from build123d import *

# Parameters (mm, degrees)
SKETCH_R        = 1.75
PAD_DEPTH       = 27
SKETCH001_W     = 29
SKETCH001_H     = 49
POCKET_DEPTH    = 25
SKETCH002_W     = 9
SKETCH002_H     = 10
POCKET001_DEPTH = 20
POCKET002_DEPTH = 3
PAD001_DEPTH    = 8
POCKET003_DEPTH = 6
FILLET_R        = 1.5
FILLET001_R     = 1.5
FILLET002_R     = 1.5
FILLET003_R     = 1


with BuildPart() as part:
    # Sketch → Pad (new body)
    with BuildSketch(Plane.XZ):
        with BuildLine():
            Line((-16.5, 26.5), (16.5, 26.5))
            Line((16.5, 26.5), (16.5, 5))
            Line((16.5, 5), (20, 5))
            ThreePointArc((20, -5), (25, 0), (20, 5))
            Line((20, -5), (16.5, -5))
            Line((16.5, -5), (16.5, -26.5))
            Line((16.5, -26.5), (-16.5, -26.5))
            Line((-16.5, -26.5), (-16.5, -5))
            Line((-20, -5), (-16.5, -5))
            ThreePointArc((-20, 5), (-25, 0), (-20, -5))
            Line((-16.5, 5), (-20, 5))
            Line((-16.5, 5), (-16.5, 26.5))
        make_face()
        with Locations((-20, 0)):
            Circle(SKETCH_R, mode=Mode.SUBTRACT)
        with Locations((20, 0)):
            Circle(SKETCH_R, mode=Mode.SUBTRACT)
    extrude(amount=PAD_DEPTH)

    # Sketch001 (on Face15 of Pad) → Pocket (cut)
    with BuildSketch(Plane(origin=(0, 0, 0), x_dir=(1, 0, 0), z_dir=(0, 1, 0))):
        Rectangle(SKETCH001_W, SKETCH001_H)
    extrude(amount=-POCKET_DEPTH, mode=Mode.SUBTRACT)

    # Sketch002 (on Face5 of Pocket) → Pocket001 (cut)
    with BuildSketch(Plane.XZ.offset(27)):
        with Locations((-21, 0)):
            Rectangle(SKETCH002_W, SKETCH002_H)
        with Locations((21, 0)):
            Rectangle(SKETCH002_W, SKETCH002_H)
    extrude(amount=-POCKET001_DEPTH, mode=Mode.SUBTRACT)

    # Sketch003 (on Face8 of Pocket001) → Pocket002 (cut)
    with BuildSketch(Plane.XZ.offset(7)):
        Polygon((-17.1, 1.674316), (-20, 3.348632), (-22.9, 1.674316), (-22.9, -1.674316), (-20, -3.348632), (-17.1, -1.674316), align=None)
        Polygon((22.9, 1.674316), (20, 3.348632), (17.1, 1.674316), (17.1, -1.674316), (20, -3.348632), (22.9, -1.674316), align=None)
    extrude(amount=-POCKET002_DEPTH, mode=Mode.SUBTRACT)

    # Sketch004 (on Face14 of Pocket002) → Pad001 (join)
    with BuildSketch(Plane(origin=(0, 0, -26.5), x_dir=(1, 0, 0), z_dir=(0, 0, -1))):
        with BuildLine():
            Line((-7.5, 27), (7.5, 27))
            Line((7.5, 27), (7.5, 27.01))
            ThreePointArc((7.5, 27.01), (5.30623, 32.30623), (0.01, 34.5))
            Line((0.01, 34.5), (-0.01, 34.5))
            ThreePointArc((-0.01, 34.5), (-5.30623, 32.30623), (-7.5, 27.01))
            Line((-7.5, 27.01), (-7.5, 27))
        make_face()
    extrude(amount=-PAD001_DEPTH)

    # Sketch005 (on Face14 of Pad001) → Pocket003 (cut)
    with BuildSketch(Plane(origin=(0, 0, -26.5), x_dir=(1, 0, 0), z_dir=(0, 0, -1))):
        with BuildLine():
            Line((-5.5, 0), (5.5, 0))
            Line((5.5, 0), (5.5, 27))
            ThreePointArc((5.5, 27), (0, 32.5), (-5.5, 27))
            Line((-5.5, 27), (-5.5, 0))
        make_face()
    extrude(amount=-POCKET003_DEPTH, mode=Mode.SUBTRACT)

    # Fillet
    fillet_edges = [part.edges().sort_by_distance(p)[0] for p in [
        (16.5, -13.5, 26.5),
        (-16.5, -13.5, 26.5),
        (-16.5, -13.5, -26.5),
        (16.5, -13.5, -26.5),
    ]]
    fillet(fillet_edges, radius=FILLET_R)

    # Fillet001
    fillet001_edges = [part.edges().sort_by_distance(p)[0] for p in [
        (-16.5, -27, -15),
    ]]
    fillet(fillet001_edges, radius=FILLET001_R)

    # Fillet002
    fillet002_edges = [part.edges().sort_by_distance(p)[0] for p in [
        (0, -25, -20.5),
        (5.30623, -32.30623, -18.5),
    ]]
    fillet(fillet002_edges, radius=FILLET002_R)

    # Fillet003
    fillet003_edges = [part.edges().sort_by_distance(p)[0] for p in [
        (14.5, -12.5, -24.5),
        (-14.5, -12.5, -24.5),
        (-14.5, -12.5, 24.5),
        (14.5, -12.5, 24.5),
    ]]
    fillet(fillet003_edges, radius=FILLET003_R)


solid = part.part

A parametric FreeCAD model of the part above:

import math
import FreeCAD as App
import Part
import Sketcher
Q = App.Units.Quantity


def edges_at(feature, points):
    """Names of the edges that pass closest to the given points."""
    edges = feature.Shape.Edges
    near = lambda p: min(range(len(edges)), key=lambda i: edges[i].distToShape(Part.Vertex(*p))[0])
    return sorted({f"Edge{near(p) + 1}" for p in points})

doc = App.newDocument("Part")
body = doc.addObject("PartDesign::Body", "Body")

sketch1 = doc.addObject("Sketcher::SketchObject", "Sketch")
body.addObject(sketch1)
sketch1.AttachmentSupport = (doc.XZ_Plane, [""])
sketch1.MapMode = "FlatFace"
sketch1.addGeometry([
    Part.LineSegment(App.Vector(16.5, 26.5, 0), App.Vector(-16.5, 26.5, 0)),
    Part.LineSegment(App.Vector(-16.5, 26.5, 0), App.Vector(-16.5, 5, 0)),
    Part.LineSegment(App.Vector(-16.5, 5, 0), App.Vector(-20, 5, 0)),
    Part.ArcOfCircle(Part.Circle(App.Vector(-20, 0, 0), App.Vector(0, 0, 1), 5), math.radians(90), math.radians(270)),
    Part.LineSegment(App.Vector(-20, -5, 0), App.Vector(-16.5, -5, 0)),
    Part.LineSegment(App.Vector(-16.5, -5, 0), App.Vector(-16.5, -26.5, 0)),
    Part.LineSegment(App.Vector(-16.5, -26.5, 0), App.Vector(16.5, -26.5, 0)),
    Part.LineSegment(App.Vector(16.5, -26.5, 0), App.Vector(16.5, -5, 0)),
    Part.LineSegment(App.Vector(16.5, -5, 0), App.Vector(20, -5, 0)),
    Part.ArcOfCircle(Part.Circle(App.Vector(20, 0, 0), App.Vector(0, 0, 1), 5), math.radians(-90), math.radians(90)),
    Part.LineSegment(App.Vector(20, 5, 0), App.Vector(16.5, 5, 0)),
    Part.LineSegment(App.Vector(16.5, 5, 0), App.Vector(16.5, 26.5, 0)),
    Part.Circle(App.Vector(20, 0, 0), App.Vector(0, 0, 1), 1.75),
    Part.Circle(App.Vector(-20, 0, 0), App.Vector(0, 0, 1), 1.75),
], False)
sketch1.addConstraint([
    Sketcher.Constraint("Coincident", 0, 2, 1, 1),
    Sketcher.Constraint("Coincident", 1, 2, 2, 1),
    Sketcher.Constraint("Tangent", 2, 2, 3, 1),
    Sketcher.Constraint("Tangent", 3, 2, 4, 1),
    Sketcher.Constraint("Coincident", 4, 2, 5, 1),
    Sketcher.Constraint("Coincident", 5, 2, 6, 1),
    Sketcher.Constraint("Coincident", 6, 2, 7, 1),
    Sketcher.Constraint("Coincident", 7, 2, 8, 1),
    Sketcher.Constraint("Tangent", 8, 2, 9, 1),
    Sketcher.Constraint("Tangent", 9, 2, 10, 1),
    Sketcher.Constraint("Coincident", 10, 2, 11, 1),
    Sketcher.Constraint("Coincident", 11, 2, 0, 1),
    Sketcher.Constraint("Horizontal", 0),
    Sketcher.Constraint("Vertical", 1),
    Sketcher.Constraint("Horizontal", 2),
    Sketcher.Constraint("Horizontal", 4),
    Sketcher.Constraint("Vertical", 5),
    Sketcher.Constraint("Horizontal", 6),
    Sketcher.Constraint("Vertical", 7),
    Sketcher.Constraint("Horizontal", 8),
    Sketcher.Constraint("Horizontal", 10),
    Sketcher.Constraint("Vertical", 11),
    Sketcher.Constraint("Coincident", 12, 3, 9, 3),
    Sketcher.Constraint("Coincident", 13, 3, 3, 3),
    Sketcher.Constraint("Equal", 3, 9),
    Sketcher.Constraint("Equal", 12, 13),
    Sketcher.Constraint("Symmetric", 3, 3, 9, 3, -1, 1),
    Sketcher.Constraint("Symmetric", 0, 2, 6, 2, -1, 1),
    Sketcher.Constraint("Symmetric", 4, 2, 7, 2, -2),
    Sketcher.Constraint("Vertical", 7, 2, 10, 2),
    Sketcher.Constraint("Radius", 3, 5.0),
    Sketcher.Constraint("Diameter", 12, 3.5),
    Sketcher.Constraint("DistanceX", 0, 2, 0, 1, 33.0),
    Sketcher.Constraint("DistanceX", 2, 2, 2, 1, 3.5),
    Sketcher.Constraint("DistanceY", 1, 2, 1, 1, 21.5),
])
pad1 = doc.addObject("PartDesign::Pad", "Pad")
body.addObject(pad1)
pad1.Profile = sketch1
pad1.Length = 27

sketch2 = doc.addObject("Sketcher::SketchObject", "Sketch001")
body.addObject(sketch2)
sketch2.AttachmentSupport = (doc.XZ_Plane, [""])
sketch2.MapMode = "FlatFace"
sketch2.addGeometry([
    Part.LineSegment(App.Vector(-14.5, -24.5, 0), App.Vector(-14.5, 24.5, 0)),
    Part.LineSegment(App.Vector(-14.5, 24.5, 0), App.Vector(14.5, 24.5, 0)),
    Part.LineSegment(App.Vector(14.5, 24.5, 0), App.Vector(14.5, -24.5, 0)),
    Part.LineSegment(App.Vector(14.5, -24.5, 0), App.Vector(-14.5, -24.5, 0)),
], False)
sketch2.addConstraint([
    Sketcher.Constraint("Coincident", 0, 2, 1, 1),
    Sketcher.Constraint("Coincident", 1, 2, 2, 1),
    Sketcher.Constraint("Coincident", 2, 2, 3, 1),
    Sketcher.Constraint("Coincident", 3, 2, 0, 1),
    Sketcher.Constraint("Vertical", 0),
    Sketcher.Constraint("Horizontal", 1),
    Sketcher.Constraint("Vertical", 2),
    Sketcher.Constraint("Horizontal", 3),
    Sketcher.Constraint("Symmetric", 0, 2, 2, 2, -1, 1),
    Sketcher.Constraint("DistanceX", 1, 1, 1, 2, 29.0),
    Sketcher.Constraint("DistanceY", 0, 1, 0, 2, 49.0),
])
pocket1 = doc.addObject("PartDesign::Pocket", "Pocket")
body.addObject(pocket1)
pocket1.Profile = sketch2
pocket1.Length = 25
pocket1.Reversed = True

sketch3 = doc.addObject("Sketcher::SketchObject", "Sketch002")
body.addObject(sketch3)
sketch3.AttachmentSupport = (doc.XZ_Plane, [""])
sketch3.MapMode = "FlatFace"
sketch3.AttachmentOffset = App.Placement(App.Vector(0, 0, 27), App.Rotation())
sketch3.addGeometry([
    Part.LineSegment(App.Vector(-25.5, 5, 0), App.Vector(-25.5, -5, 0)),
    Part.LineSegment(App.Vector(-25.5, -5, 0), App.Vector(-16.5, -5, 0)),
    Part.LineSegment(App.Vector(-16.5, -5, 0), App.Vector(-16.5, 5, 0)),
    Part.LineSegment(App.Vector(-16.5, 5, 0), App.Vector(-25.5, 5, 0)),
    Part.LineSegment(App.Vector(16.5, 5, 0), App.Vector(16.5, -5, 0)),
    Part.LineSegment(App.Vector(16.5, -5, 0), App.Vector(25.5, -5, 0)),
    Part.LineSegment(App.Vector(25.5, -5, 0), App.Vector(25.5, 5, 0)),
    Part.LineSegment(App.Vector(25.5, 5, 0), App.Vector(16.5, 5, 0)),
], False)
sketch3.addConstraint([
    Sketcher.Constraint("Coincident", 0, 2, 1, 1),
    Sketcher.Constraint("Coincident", 1, 2, 2, 1),
    Sketcher.Constraint("Coincident", 2, 2, 3, 1),
    Sketcher.Constraint("Coincident", 3, 2, 0, 1),
    Sketcher.Constraint("Coincident", 4, 2, 5, 1),
    Sketcher.Constraint("Coincident", 5, 2, 6, 1),
    Sketcher.Constraint("Coincident", 6, 2, 7, 1),
    Sketcher.Constraint("Coincident", 7, 2, 4, 1),
    Sketcher.Constraint("Vertical", 0),
    Sketcher.Constraint("Horizontal", 1),
    Sketcher.Constraint("Vertical", 2),
    Sketcher.Constraint("Horizontal", 3),
    Sketcher.Constraint("Vertical", 4),
    Sketcher.Constraint("Horizontal", 5),
    Sketcher.Constraint("Vertical", 6),
    Sketcher.Constraint("Horizontal", 7),
    Sketcher.Constraint("Symmetric", 2, 2, 4, 2, -1, 1),
    Sketcher.Constraint("Symmetric", 0, 2, 6, 2, -1, 1),
    Sketcher.Constraint("Horizontal", 1, 2, 4, 2),
    Sketcher.Constraint("DistanceX", 1, 1, 1, 2, 9.0),
    Sketcher.Constraint("DistanceY", 0, 2, 0, 1, 10.0),
    Sketcher.Constraint("DistanceX", 1, 2, 4, 2, 33.0),
])
pocket2 = doc.addObject("PartDesign::Pocket", "Pocket001")
body.addObject(pocket2)
pocket2.Profile = sketch3
pocket2.Length = 20

sketch4 = doc.addObject("Sketcher::SketchObject", "Sketch003")
body.addObject(sketch4)
sketch4.AttachmentSupport = (doc.XZ_Plane, [""])
sketch4.MapMode = "FlatFace"
sketch4.AttachmentOffset = App.Placement(App.Vector(0, 0, 7), App.Rotation())
sketch4.addGeometry([
    Part.LineSegment(App.Vector(-17.1, 1.674316, 0), App.Vector(-20, 3.348632, 0)),
    Part.LineSegment(App.Vector(-20, 3.348632, 0), App.Vector(-22.9, 1.674316, 0)),
    Part.LineSegment(App.Vector(-22.9, 1.674316, 0), App.Vector(-22.9, -1.674316, 0)),
    Part.LineSegment(App.Vector(-22.9, -1.674316, 0), App.Vector(-20, -3.348632, 0)),
    Part.LineSegment(App.Vector(-20, -3.348632, 0), App.Vector(-17.1, -1.674316, 0)),
    Part.LineSegment(App.Vector(-17.1, -1.674316, 0), App.Vector(-17.1, 1.674316, 0)),
    Part.LineSegment(App.Vector(22.9, 1.674316, 0), App.Vector(20, 3.348632, 0)),
    Part.LineSegment(App.Vector(20, 3.348632, 0), App.Vector(17.1, 1.674316, 0)),
    Part.LineSegment(App.Vector(17.1, 1.674316, 0), App.Vector(17.1, -1.674316, 0)),
    Part.LineSegment(App.Vector(17.1, -1.674316, 0), App.Vector(20, -3.348632, 0)),
    Part.LineSegment(App.Vector(20, -3.348632, 0), App.Vector(22.9, -1.674316, 0)),
    Part.LineSegment(App.Vector(22.9, -1.674316, 0), App.Vector(22.9, 1.674316, 0)),
], False)
sketch4.addConstraint([
    Sketcher.Constraint("Coincident", 0, 2, 1, 1),
    Sketcher.Constraint("Coincident", 1, 2, 2, 1),
    Sketcher.Constraint("Coincident", 2, 2, 3, 1),
    Sketcher.Constraint("Coincident", 3, 2, 4, 1),
    Sketcher.Constraint("Coincident", 4, 2, 5, 1),
    Sketcher.Constraint("Coincident", 5, 2, 0, 1),
    Sketcher.Constraint("Coincident", 6, 2, 7, 1),
    Sketcher.Constraint("Coincident", 7, 2, 8, 1),
    Sketcher.Constraint("Coincident", 8, 2, 9, 1),
    Sketcher.Constraint("Coincident", 9, 2, 10, 1),
    Sketcher.Constraint("Coincident", 10, 2, 11, 1),
    Sketcher.Constraint("Coincident", 11, 2, 6, 1),
    Sketcher.Constraint("Vertical", 2),
    Sketcher.Constraint("Vertical", 5),
    Sketcher.Constraint("Vertical", 8),
    Sketcher.Constraint("Vertical", 11),
    Sketcher.Constraint("Symmetric", 3, 2, 6, 2, -1, 1),
    Sketcher.Constraint("Symmetric", 4, 2, 7, 2, -1, 1),
    Sketcher.Constraint("Symmetric", 0, 2, 9, 2, -1, 1),
    Sketcher.Constraint("Symmetric", 1, 2, 10, 2, -1, 1),
    Sketcher.Constraint("Symmetric", 0, 2, 6, 2, -2),
    Sketcher.Constraint("Parallel", 0, 3),
    Sketcher.Constraint("Parallel", 1, 4),
    Sketcher.Constraint("Parallel", 3, 6),
    Sketcher.Constraint("Parallel", 6, 9),
    Sketcher.Constraint("Horizontal", 2, 2, 4, 2),
    Sketcher.Constraint("Horizontal", 1, 2, 5, 2),
    Sketcher.Constraint("Angle", 0, Q("149.999997 deg")),
    Sketcher.Constraint("DistanceX", 0, 2, -1, 1, 20.0),
    Sketcher.Constraint("DistanceX", 1, 2, -1, 1, 22.9),
    Sketcher.Constraint("DistanceY", 2, 2, 2, 1, 3.348632),
])
pocket3 = doc.addObject("PartDesign::Pocket", "Pocket002")
body.addObject(pocket3)
pocket3.Profile = sketch4
pocket3.Length = 3

sketch5 = doc.addObject("Sketcher::SketchObject", "Sketch004")
body.addObject(sketch5)
sketch5.AttachmentSupport = (doc.XY_Plane, [""])
sketch5.MapMode = "FlatFace"
sketch5.AttachmentOffset = App.Placement(App.Vector(0, 0, -26.5), App.Rotation())
sketch5.addGeometry([
    Part.LineSegment(App.Vector(-7.5, -27, 0), App.Vector(7.5, -27, 0)),
    Part.LineSegment(App.Vector(7.5, -27, 0), App.Vector(7.5, -27.01, 0)),
    Part.ArcOfCircle(Part.Circle(App.Vector(0.010001, -27.010001, 0), App.Vector(0, 0, 1), 7.489999), math.radians(-90.000005), math.radians(0.000005)),
    Part.LineSegment(App.Vector(0.01, -34.5, 0), App.Vector(-0.01, -34.5, 0)),
    Part.ArcOfCircle(Part.Circle(App.Vector(-0.010001, -27.010001, 0), App.Vector(0, 0, 1), 7.489999), math.radians(179.999995), math.radians(270.000005)),
    Part.LineSegment(App.Vector(-7.5, -27.01, 0), App.Vector(-7.5, -27, 0)),
], False)
sketch5.addConstraint([
    Sketcher.Constraint("Coincident", 0, 2, 1, 1),
    Sketcher.Constraint("Tangent", 1, 2, 2, 2),
    Sketcher.Constraint("Tangent", 2, 1, 3, 1),
    Sketcher.Constraint("Tangent", 3, 2, 4, 2),
    Sketcher.Constraint("Tangent", 4, 1, 5, 1),
    Sketcher.Constraint("Coincident", 5, 2, 0, 1),
    Sketcher.Constraint("Horizontal", 0),
    Sketcher.Constraint("Equal", 2, 4),
    Sketcher.Constraint("Symmetric", 1, 2, 4, 1, -2),
    Sketcher.Constraint("Horizontal", 4, 3, 1, 2),
    Sketcher.Constraint("Vertical", 4, 3, 3, 2),
    Sketcher.Constraint("DistanceX", 0, 1, 0, 2, 15.0),
    Sketcher.Constraint("Radius", 2, 7.489999),
    Sketcher.Constraint("DistanceY", 0, 2, -1, 1, 27.0),
    Sketcher.Constraint("DistanceY", 1, 2, 1, 1, 0.01),
])
pad2 = doc.addObject("PartDesign::Pad", "Pad001")
body.addObject(pad2)
pad2.Profile = sketch5
pad2.Length = 8

sketch6 = doc.addObject("Sketcher::SketchObject", "Sketch005")
body.addObject(sketch6)
sketch6.AttachmentSupport = (doc.XY_Plane, [""])
sketch6.MapMode = "FlatFace"
sketch6.AttachmentOffset = App.Placement(App.Vector(0, 0, -26.5), App.Rotation())
sketch6.addGeometry([
    Part.LineSegment(App.Vector(-5.5, 0, 0), App.Vector(5.5, 0, 0)),
    Part.LineSegment(App.Vector(5.5, 0, 0), App.Vector(5.5, -27, 0)),
    Part.ArcOfCircle(Part.Circle(App.Vector(0, -27, 0), App.Vector(0, 0, 1), 5.5), math.radians(180), math.radians(360)),
    Part.LineSegment(App.Vector(-5.5, -27, 0), App.Vector(-5.5, 0, 0)),
], False)
sketch6.addConstraint([
    Sketcher.Constraint("Coincident", 0, 2, 1, 1),
    Sketcher.Constraint("Tangent", 1, 2, 2, 2),
    Sketcher.Constraint("Tangent", 2, 1, 3, 1),
    Sketcher.Constraint("Coincident", 3, 2, 0, 1),
    Sketcher.Constraint("Horizontal", 0),
    Sketcher.Constraint("Vertical", 1),
    Sketcher.Constraint("Vertical", 3),
    Sketcher.Constraint("Symmetric", 0, 2, 3, 2, -1, 1),
    Sketcher.Constraint("Radius", 2, 5.5),
    Sketcher.Constraint("DistanceY", 1, 2, 1, 1, 27.0),
])
pocket4 = doc.addObject("PartDesign::Pocket", "Pocket003")
body.addObject(pocket4)
pocket4.Profile = sketch6
pocket4.Length = 6
pocket4.Reversed = True
doc.recompute()

fillet = doc.addObject("PartDesign::Fillet", "Fillet")
body.addObject(fillet)
fillet.Base = (pocket4, edges_at(pocket4, [
    (16.5, -13.5, 26.5),
    (-16.5, -13.5, 26.5),
    (-16.5, -13.5, -26.5),
    (16.5, -13.5, -26.5),
]))
fillet.Radius = 1.5
doc.recompute()

fillet2 = doc.addObject("PartDesign::Fillet", "Fillet001")
body.addObject(fillet2)
fillet2.Base = (fillet, edges_at(fillet, [(-16.5, -27, 0)]))
fillet2.Radius = 1.5
doc.recompute()

fillet3 = doc.addObject("PartDesign::Fillet", "Fillet002")
body.addObject(fillet3)
fillet3.Base = (fillet2, edges_at(fillet2, [(0, -25, -20.5), (5.306, -32.306, -18.5)]))
fillet3.Radius = 1.5
doc.recompute()

fillet4 = doc.addObject("PartDesign::Fillet", "Fillet003")
body.addObject(fillet4)
fillet4.Base = (fillet3, edges_at(fillet3, [
    (14.5, -12.5, -24.5),
    (-14.5, -12.5, -24.5),
    (-14.5, -12.5, 24.5),
    (14.5, -12.5, 24.5),
]))
fillet4.Radius = 1

doc.recompute()
